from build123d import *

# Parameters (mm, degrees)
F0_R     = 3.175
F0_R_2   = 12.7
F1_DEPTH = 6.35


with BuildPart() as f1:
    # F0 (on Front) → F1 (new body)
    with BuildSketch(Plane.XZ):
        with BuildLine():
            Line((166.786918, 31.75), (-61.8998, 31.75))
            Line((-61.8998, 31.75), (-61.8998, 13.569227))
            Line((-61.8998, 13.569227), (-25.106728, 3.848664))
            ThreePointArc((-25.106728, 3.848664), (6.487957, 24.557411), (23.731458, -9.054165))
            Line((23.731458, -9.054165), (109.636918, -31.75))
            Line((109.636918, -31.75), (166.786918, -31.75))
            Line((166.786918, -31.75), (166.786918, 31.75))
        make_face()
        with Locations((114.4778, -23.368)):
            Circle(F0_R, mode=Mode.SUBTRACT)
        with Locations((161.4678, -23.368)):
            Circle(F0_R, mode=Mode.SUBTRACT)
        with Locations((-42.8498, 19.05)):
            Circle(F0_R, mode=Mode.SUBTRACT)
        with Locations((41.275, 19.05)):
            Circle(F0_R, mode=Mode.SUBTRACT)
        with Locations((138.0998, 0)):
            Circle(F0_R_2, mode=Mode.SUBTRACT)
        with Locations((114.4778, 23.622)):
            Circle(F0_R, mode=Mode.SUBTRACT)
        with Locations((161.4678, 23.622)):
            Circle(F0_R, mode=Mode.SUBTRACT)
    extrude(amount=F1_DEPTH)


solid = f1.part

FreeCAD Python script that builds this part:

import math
import FreeCAD as App
import Part
import Sketcher
Q = App.Units.Quantity

doc = App.newDocument("Part")
body = doc.addObject("PartDesign::Body", "Body")

# Sketch on XZ plane
sketch1 = doc.addObject("Sketcher::SketchObject", "Sketch")
body.addObject(sketch1)
sketch1.AttachmentSupport = (doc.XZ_Plane, [""])
sketch1.MapMode = "FlatFace"
sketch1.addGeometry([
    Part.LineSegment(App.Vector(166.8, 31.8, 0), App.Vector(-61.9, 31.8, 0)),  # 0
    Part.LineSegment(App.Vector(-61.9, 31.8, 0), App.Vector(-61.9, 13.6, 0)),  # 1
    Part.LineSegment(App.Vector(-61.9, 13.6, 0), App.Vector(-25.1, 3.8, 0)),  # 2
    Part.ArcOfCircle(Part.Circle(App.Vector(0, 0, 0), App.Vector(0, 0, 1), 25.4), math.radians(-21), math.radians(171)),  # 3
    Part.LineSegment(App.Vector(23.7, -9.1, 0), App.Vector(109.6, -31.8, 0)),  # 4
    Part.LineSegment(App.Vector(109.6, -31.8, 0), App.Vector(166.8, -31.8, 0)),  # 5
    Part.LineSegment(App.Vector(166.8, -31.8, 0), App.Vector(166.8, 31.8, 0)),  # 6
    Part.Circle(App.Vector(114.5, -23.4, 0), App.Vector(0, 0, 1), 3.2),  # 7
    Part.Circle(App.Vector(161.5, -23.4, 0), App.Vector(0, 0, 1), 3.2),  # 8
    Part.Circle(App.Vector(138.1, 0, 0), App.Vector(0, 0, 1), 12.7),  # 9
    Part.Circle(App.Vector(-42.8, 19.1, 0), App.Vector(0, 0, 1), 3.2),  # 10
    Part.Circle(App.Vector(41.3, 19.1, 0), App.Vector(0, 0, 1), 3.2),  # 11
    Part.Circle(App.Vector(114.5, 23.6, 0), App.Vector(0, 0, 1), 3.2),  # 12
    Part.Circle(App.Vector(161.5, 23.6, 0), App.Vector(0, 0, 1), 3.2),  # 13
], False)
sketch1.addConstraint([
    Sketcher.Constraint("Coincident", 0, 2, 1, 1),
    Sketcher.Constraint("Coincident", 1, 2, 2, 1),
    Sketcher.Constraint("Coincident", 2, 2, 3, 2),
    Sketcher.Constraint("Coincident", 3, 1, 4, 1),
    Sketcher.Constraint("Coincident", 4, 2, 5, 1),
    Sketcher.Constraint("Coincident", 5, 2, 6, 1),
    Sketcher.Constraint("Coincident", 6, 2, 0, 1),
    Sketcher.Constraint("Horizontal", 0),
    Sketcher.Constraint("Vertical", 1),
    Sketcher.Constraint("Horizontal", 5),
    Sketcher.Constraint("Vertical", 6),
    Sketcher.Constraint("Coincident", 3, 3, -1, 1),
    Sketcher.Constraint("Equal", 7, 8),
    Sketcher.Constraint("Equal", 8, 10),
    Sketcher.Constraint("Equal", 10, 11),
    Sketcher.Constraint("Equal", 11, 12),
    Sketcher.Constraint("Equal", 12, 13),
    Sketcher.Constraint("PointOnObject", 9, 3, -1),
    Sketcher.Constraint("Parallel", 2, 4),
    Sketcher.Constraint("Horizontal", 7, 3, 8, 3),
    Sketcher.Constraint("Horizontal", 10, 3, 11, 3),
    Sketcher.Constraint("Horizontal", 12, 3, 13, 3),
    Sketcher.Constraint("Vertical", 7, 3, 12, 3),
    Sketcher.Constraint("Vertical", 8, 3, 13, 3),
    Sketcher.Constraint("Diameter", 9, Q("1 in")),
    Sketcher.Constraint("Radius", 3, Q("1 in")),
    Sketcher.Constraint("Diameter", 7, Q("0.25 in")),
    Sketcher.Constraint("DistanceY", 6, 1, 6, 2, Q("2.5 in")),
    Sketcher.Constraint("DistanceX", 5, 1, 5, 2, Q("2.25 in")),
    Sketcher.Constraint("DistanceY", 10, 3, 0, 2, Q("0.5 in")),
    Sketcher.Constraint("DistanceY", 7, 3, -1, 1, Q("0.92 in")),
    Sketcher.Constraint("DistanceY", -1, 1, 10, 3, Q("0.75 in")),
    Sketcher.Constraint("DistanceY", -1, 1, 12, 3, Q("0.93 in")),
    Sketcher.Constraint("DistanceX", 7, 3, 8, 3, Q("1.85 in")),
    Sketcher.Constraint("DistanceX", 9, 3, 8, 3, Q("0.92 in")),
    Sketcher.Constraint("DistanceX", 0, 2, 10, 3, Q("0.75 in")),
    Sketcher.Constraint("DistanceX", -1, 1, 7, 3, Q("4.507 in")),
    Sketcher.Constraint("DistanceX", 10, 3, -1, 1, Q("1.687 in")),
    Sketcher.Constraint("DistanceX", -1, 1, 11, 3, Q("1.625 in")),
    Sketcher.Constraint("Distance", 2, Q("38.055479 mm")),
    Sketcher.Constraint("DistanceX", 0, 2, 0, 1, Q("228.686718 mm")),
    Sketcher.Constraint("DistanceY", 1, 2, 1, 1, Q("18.180773 mm")),
])
pad1 = doc.addObject("PartDesign::Pad", "Pad")
body.addObject(pad1)
pad1.Profile = sketch1
pad1.Length = Q("0.25 in")

doc.recompute()
